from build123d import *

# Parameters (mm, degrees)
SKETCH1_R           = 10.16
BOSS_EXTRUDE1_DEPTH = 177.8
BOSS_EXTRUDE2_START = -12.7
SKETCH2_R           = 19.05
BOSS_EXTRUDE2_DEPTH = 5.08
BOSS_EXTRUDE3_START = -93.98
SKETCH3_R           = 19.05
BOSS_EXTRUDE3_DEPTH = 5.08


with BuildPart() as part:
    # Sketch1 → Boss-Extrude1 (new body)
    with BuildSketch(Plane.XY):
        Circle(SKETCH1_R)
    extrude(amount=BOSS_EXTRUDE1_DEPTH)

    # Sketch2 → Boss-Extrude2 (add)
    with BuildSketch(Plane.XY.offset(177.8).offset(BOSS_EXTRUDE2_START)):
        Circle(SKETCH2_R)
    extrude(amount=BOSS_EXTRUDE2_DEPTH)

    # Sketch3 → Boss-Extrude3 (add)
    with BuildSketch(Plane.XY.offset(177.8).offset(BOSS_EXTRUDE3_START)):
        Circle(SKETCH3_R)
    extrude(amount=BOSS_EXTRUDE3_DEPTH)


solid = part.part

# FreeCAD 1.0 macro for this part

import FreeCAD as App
import Part
import Sketcher
from FreeCAD import Vector
Q = App.Units.Quantity

doc = App.newDocument("Part")
body = doc.addObject("PartDesign::Body", "Body")

# Sketch on XY plane
sketch1 = body.newObject("Sketcher::SketchObject", "Sketch")
sketch1.AttachmentSupport = (doc.getObject("XY_Plane"), [""])
sketch1.MapMode = "FlatFace"
sketch1.addGeometry(Part.Circle(Vector(0, 0, 0), Vector(0, 0, 1), 10), False)
sketch1.addConstraint(Sketcher.Constraint("Coincident", 0, 3, -1, 1))
sketch1.addConstraint(Sketcher.Constraint("Diameter", 0, Q("0.8 in")))
pad1 = body.newObject("PartDesign::Pad", "Pad")
pad1.Profile = sketch1
pad1.Length = Q("7 in")

# Sketch on XY plane
sketch2 = body.newObject("Sketcher::SketchObject", "Sketch001")
sketch2.AttachmentSupport = (doc.getObject("XY_Plane"), [""])
sketch2.MapMode = "FlatFace"
sketch2.AttachmentOffset = App.Placement(Vector(0, 0, 6.5 * 25.4), App.Rotation())
sketch2.addGeometry(Part.Circle(Vector(0, 0, 0), Vector(0, 0, 1), 19), False)
sketch2.addConstraint(Sketcher.Constraint("Coincident", 0, 3, -1, 1))
sketch2.addConstraint(Sketcher.Constraint("Diameter", 0, Q("1.5 in")))
pad2 = body.newObject("PartDesign::Pad", "Pad001")
pad2.Profile = sketch2
pad2.Length = Q("0.2 in")

# Sketch on XY plane
sketch3 = body.newObject("Sketcher::SketchObject", "Sketch002")
sketch3.AttachmentSupport = (doc.getObject("XY_Plane"), [""])
sketch3.MapMode = "FlatFace"
sketch3.AttachmentOffset = App.Placement(Vector(0, 0, 3.3 * 25.4), App.Rotation())
sketch3.addGeometry(Part.Circle(Vector(0, 0, 0), Vector(0, 0, 1), 19), False)
sketch3.addConstraint(Sketcher.Constraint("Coincident", 0, 3, -1, 1))
sketch3.addConstraint(Sketcher.Constraint("Diameter", 0, Q("1.5 in")))
pad3 = body.newObject("PartDesign::Pad", "Pad002")
pad3.Profile = sketch3
pad3.Length = Q("0.2 in")

doc.recompute()
